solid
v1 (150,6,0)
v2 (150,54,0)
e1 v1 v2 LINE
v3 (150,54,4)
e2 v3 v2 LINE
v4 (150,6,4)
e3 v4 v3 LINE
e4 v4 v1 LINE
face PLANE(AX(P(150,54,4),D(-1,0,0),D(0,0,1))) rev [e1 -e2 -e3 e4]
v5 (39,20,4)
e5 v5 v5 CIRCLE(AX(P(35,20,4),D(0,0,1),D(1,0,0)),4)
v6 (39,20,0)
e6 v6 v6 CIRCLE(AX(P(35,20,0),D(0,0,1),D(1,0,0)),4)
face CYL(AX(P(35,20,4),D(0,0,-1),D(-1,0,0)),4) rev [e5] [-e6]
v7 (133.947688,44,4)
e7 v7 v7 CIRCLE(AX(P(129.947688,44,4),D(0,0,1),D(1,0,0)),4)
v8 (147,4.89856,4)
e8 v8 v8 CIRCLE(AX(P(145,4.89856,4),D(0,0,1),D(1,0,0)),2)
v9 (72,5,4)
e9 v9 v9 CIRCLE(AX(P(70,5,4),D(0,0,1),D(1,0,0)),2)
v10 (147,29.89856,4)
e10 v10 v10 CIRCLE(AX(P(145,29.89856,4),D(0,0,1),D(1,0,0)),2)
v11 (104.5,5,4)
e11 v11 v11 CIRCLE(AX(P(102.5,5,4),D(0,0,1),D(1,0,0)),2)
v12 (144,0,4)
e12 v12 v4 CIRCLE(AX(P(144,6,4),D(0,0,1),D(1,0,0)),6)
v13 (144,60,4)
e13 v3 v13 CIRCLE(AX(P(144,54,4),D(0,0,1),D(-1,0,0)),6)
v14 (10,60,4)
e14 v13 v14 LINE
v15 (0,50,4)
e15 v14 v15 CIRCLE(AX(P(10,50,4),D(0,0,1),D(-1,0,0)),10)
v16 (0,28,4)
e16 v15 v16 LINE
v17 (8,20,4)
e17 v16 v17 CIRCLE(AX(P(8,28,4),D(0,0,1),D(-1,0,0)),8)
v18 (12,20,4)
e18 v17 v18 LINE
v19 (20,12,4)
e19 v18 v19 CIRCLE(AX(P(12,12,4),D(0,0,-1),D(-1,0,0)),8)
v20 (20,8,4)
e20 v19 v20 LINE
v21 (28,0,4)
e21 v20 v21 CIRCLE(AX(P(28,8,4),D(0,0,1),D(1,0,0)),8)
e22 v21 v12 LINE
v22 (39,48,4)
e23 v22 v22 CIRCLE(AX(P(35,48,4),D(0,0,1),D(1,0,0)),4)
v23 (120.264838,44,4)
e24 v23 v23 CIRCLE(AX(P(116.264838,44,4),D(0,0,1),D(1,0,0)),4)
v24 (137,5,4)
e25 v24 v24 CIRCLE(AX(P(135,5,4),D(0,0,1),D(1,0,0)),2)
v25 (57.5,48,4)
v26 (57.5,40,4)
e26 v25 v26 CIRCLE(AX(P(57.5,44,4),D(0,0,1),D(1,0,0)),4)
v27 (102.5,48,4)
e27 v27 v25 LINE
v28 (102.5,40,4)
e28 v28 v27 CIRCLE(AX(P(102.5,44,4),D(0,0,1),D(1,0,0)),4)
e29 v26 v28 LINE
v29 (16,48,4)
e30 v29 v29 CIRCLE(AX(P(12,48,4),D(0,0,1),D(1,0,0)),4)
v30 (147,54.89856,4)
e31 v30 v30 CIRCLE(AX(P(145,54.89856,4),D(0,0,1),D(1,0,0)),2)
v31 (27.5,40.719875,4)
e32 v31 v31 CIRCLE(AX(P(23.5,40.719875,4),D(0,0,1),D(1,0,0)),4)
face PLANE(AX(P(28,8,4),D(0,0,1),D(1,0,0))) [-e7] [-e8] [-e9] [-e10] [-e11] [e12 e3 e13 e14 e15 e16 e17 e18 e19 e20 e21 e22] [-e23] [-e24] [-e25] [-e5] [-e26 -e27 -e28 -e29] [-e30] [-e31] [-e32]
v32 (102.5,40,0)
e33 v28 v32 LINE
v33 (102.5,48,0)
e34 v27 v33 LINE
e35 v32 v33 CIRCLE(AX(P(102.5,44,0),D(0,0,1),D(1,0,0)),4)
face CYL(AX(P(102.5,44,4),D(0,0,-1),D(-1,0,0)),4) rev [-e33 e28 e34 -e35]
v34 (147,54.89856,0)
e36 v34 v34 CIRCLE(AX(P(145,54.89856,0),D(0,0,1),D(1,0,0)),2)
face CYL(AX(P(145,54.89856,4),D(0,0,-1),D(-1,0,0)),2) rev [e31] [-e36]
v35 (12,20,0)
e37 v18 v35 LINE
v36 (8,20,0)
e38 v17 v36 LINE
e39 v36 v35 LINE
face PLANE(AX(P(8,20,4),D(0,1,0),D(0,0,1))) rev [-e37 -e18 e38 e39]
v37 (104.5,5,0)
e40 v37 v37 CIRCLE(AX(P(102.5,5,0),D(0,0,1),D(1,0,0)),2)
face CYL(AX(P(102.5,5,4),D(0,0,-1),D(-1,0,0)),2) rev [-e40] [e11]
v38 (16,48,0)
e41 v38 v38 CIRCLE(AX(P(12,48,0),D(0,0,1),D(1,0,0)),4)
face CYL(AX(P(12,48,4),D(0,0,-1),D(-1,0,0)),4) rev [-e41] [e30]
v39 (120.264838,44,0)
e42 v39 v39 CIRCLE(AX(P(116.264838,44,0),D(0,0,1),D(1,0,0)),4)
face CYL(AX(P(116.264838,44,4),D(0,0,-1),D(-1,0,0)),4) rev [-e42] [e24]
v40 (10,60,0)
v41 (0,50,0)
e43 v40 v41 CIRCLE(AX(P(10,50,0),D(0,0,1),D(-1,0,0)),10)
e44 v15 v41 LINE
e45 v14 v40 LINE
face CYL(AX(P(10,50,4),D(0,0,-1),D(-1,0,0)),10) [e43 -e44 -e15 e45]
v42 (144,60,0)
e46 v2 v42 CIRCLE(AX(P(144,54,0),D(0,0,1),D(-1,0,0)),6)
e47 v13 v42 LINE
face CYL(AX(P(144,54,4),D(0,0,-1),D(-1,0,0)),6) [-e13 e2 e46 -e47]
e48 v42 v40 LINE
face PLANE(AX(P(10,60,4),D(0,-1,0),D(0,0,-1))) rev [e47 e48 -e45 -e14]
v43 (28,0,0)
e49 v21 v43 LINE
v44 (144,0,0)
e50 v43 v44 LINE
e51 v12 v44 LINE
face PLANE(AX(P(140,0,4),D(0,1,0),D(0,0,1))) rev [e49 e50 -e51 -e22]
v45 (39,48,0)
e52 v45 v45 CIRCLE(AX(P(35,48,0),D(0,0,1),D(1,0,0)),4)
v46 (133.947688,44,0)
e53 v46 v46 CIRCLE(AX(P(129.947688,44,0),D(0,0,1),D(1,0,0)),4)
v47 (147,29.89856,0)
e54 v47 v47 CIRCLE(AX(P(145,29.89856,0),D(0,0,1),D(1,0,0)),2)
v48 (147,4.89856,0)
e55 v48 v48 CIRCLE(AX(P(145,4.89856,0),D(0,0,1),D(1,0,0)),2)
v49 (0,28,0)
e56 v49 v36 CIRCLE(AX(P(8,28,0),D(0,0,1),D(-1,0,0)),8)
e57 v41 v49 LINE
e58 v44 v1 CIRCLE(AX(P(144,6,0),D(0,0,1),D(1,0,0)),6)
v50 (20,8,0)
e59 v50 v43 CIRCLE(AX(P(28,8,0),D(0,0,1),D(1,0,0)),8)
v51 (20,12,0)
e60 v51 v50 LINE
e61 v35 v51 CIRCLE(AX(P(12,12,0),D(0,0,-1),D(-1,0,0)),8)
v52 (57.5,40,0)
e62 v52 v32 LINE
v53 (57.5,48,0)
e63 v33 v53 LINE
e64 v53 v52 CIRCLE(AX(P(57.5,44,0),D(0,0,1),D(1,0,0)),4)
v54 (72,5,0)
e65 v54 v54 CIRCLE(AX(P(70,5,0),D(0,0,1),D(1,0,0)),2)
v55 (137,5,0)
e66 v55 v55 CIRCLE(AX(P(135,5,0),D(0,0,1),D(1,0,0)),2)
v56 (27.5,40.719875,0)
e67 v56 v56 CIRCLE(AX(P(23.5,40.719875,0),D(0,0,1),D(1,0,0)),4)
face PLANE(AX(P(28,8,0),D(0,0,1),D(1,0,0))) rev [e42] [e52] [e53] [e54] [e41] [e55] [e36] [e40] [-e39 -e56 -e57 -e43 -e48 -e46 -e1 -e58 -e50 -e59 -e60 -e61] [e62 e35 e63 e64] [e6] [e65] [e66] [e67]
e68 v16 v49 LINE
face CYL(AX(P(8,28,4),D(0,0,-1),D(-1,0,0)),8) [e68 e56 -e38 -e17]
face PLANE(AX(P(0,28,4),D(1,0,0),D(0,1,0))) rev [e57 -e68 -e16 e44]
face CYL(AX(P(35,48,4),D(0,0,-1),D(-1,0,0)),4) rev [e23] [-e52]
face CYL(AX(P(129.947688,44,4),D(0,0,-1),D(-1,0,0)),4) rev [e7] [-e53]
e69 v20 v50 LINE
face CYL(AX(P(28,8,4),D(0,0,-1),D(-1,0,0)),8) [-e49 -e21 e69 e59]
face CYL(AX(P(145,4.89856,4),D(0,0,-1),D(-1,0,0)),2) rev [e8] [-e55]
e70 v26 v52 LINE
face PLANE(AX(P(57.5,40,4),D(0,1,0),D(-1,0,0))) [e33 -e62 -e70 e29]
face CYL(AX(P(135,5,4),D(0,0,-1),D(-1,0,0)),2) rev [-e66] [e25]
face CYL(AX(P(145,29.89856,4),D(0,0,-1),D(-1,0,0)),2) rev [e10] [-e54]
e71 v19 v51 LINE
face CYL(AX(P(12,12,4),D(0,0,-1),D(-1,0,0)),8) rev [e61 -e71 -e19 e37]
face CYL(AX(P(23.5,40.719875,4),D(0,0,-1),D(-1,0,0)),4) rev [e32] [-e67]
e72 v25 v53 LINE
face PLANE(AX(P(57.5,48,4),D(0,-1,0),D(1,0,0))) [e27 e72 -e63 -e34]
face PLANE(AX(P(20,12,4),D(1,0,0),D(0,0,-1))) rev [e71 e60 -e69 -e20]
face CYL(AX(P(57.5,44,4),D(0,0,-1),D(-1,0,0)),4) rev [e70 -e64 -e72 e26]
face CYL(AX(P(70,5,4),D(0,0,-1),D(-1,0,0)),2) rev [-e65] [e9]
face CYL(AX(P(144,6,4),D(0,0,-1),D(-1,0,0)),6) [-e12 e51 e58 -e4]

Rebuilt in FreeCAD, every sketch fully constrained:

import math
import FreeCAD as App
import Part
import Sketcher

doc = App.newDocument("Part")
body = doc.addObject("PartDesign::Body", "Body")

# Sketch on XY plane
sketch1 = body.newObject("Sketcher::SketchObject", "Sketch")
sketch1.AttachmentSupport = (doc.getObject("XY_Plane"), [""])
sketch1.MapMode = "FlatFace"
sketch1.addGeometry([
    Part.LineSegment(App.Vector(28, 0, 0), App.Vector(144, 0, 0)),  # 0
    Part.ArcOfCircle(Part.Circle(App.Vector(144, 6, 0), App.Vector(0, 0, 1), 6), math.radians(-90), math.radians(0)),  # 1
    Part.LineSegment(App.Vector(150, 6, 0), App.Vector(150, 54, 0)),  # 2
    Part.ArcOfCircle(Part.Circle(App.Vector(144, 54, 0), App.Vector(0, 0, 1), 6), math.radians(0), math.radians(90)),  # 3
    Part.LineSegment(App.Vector(144, 60, 0), App.Vector(10, 60, 0)),  # 4
    Part.ArcOfCircle(Part.Circle(App.Vector(10, 50, 0), App.Vector(0, 0, 1), 10), math.radians(90), math.radians(180)),  # 5
    Part.LineSegment(App.Vector(0, 50, 0), App.Vector(0, 28, 0)),  # 6
    Part.ArcOfCircle(Part.Circle(App.Vector(8, 28, 0), App.Vector(0, 0, 1), 8), math.radians(-180), math.radians(-90)),  # 7
    Part.LineSegment(App.Vector(8, 20, 0), App.Vector(12, 20, 0)),  # 8
    Part.ArcOfCircle(Part.Circle(App.Vector(12, 12, 0), App.Vector(0, 0, 1), 8), math.radians(0), math.radians(90)),  # 9
    Part.LineSegment(App.Vector(20, 12, 0), App.Vector(20, 8, 0)),  # 10
    Part.ArcOfCircle(Part.Circle(App.Vector(28, 8, 0), App.Vector(0, 0, 1), 8), math.radians(-180), math.radians(-90)),  # 11
    Part.Circle(App.Vector(70, 5, 0), App.Vector(0, 0, 1), 2),  # 12
    Part.Circle(App.Vector(35, 20, 0), App.Vector(0, 0, 1), 4),  # 13
    Part.Circle(App.Vector(102.5, 5, 0), App.Vector(0, 0, 1), 2),  # 14
    Part.Circle(App.Vector(135, 5, 0), App.Vector(0, 0, 1), 2),  # 15
    Part.Circle(App.Vector(145, 4.9, 0), App.Vector(0, 0, 1), 2),  # 16
    Part.Circle(App.Vector(23.5, 40.7, 0), App.Vector(0, 0, 1), 4),  # 17
    Part.Circle(App.Vector(12, 48, 0), App.Vector(0, 0, 1), 4),  # 18
    Part.Circle(App.Vector(35, 48, 0), App.Vector(0, 0, 1), 4),  # 19
    Part.Circle(App.Vector(145, 29.9, 0), App.Vector(0, 0, 1), 2),  # 20
    Part.ArcOfCircle(Part.Circle(App.Vector(57.5, 44, 0), App.Vector(0, 0, 1), 4), math.radians(90), math.radians(270)),  # 21
    Part.LineSegment(App.Vector(57.5, 48, 0), App.Vector(102.5, 48, 0)),  # 22
    Part.ArcOfCircle(Part.Circle(App.Vector(102.5, 44, 0), App.Vector(0, 0, 1), 4), math.radians(-90), math.radians(90)),  # 23
    Part.LineSegment(App.Vector(102.5, 40, 0), App.Vector(57.5, 40, 0)),  # 24
    Part.Circle(App.Vector(116.3, 44, 0), App.Vector(0, 0, 1), 4),  # 25
    Part.Circle(App.Vector(129.9, 44, 0), App.Vector(0, 0, 1), 4),  # 26
    Part.Circle(App.Vector(145, 54.9, 0), App.Vector(0, 0, 1), 2),  # 27
], False)
sketch1.addConstraint([
    Sketcher.Constraint("Tangent", 0, 2, 1, 1),
    Sketcher.Constraint("Tangent", 1, 2, 2, 1),
    Sketcher.Constraint("Tangent", 2, 2, 3, 1),
    Sketcher.Constraint("Tangent", 3, 2, 4, 1),
    Sketcher.Constraint("Tangent", 4, 2, 5, 1),
    Sketcher.Constraint("Tangent", 5, 2, 6, 1),
    Sketcher.Constraint("Tangent", 6, 2, 7, 1),
    Sketcher.Constraint("Tangent", 7, 2, 8, 1),
    Sketcher.Constraint("Tangent", 8, 2, 9, 2),
    Sketcher.Constraint("Tangent", 9, 1, 10, 1),
    Sketcher.Constraint("Tangent", 10, 2, 11, 1),
    Sketcher.Constraint("Tangent", 11, 2, 0, 1),
    Sketcher.Constraint("Tangent", 21, 1, 22, 1),
    Sketcher.Constraint("Tangent", 22, 2, 23, 2),
    Sketcher.Constraint("Tangent", 23, 1, 24, 1),
    Sketcher.Constraint("Tangent", 24, 2, 21, 2),
    Sketcher.Constraint("Horizontal", 0),
    Sketcher.Constraint("Vertical", 2),
    Sketcher.Constraint("Horizontal", 4),
    Sketcher.Constraint("Vertical", 6),
    Sketcher.Constraint("Horizontal", 8),
    Sketcher.Constraint("Vertical", 10),
    Sketcher.Constraint("Horizontal", 22),
    Sketcher.Constraint("Horizontal", 24),
    Sketcher.Constraint("Equal", 1, 3),
    Sketcher.Constraint("Equal", 7, 9),
    Sketcher.Constraint("Equal", 9, 11),
    Sketcher.Constraint("Equal", 12, 14),
    Sketcher.Constraint("Equal", 14, 15),
    Sketcher.Constraint("Equal", 15, 16),
    Sketcher.Constraint("Equal", 13, 17),
    Sketcher.Constraint("Equal", 17, 18),
    Sketcher.Constraint("Equal", 18, 19),
    Sketcher.Constraint("Equal", 16, 20),
    Sketcher.Constraint("Equal", 19, 21),
    Sketcher.Constraint("Equal", 23, 25),
    Sketcher.Constraint("Equal", 25, 26),
    Sketcher.Constraint("Equal", 20, 27),
    Sketcher.Constraint("PointOnObject", 0, 2, -1),
    Sketcher.Constraint("PointOnObject", 5, 2, -2),
    Sketcher.Constraint("Horizontal", 12, 3, 14, 3),
    Sketcher.Constraint("Horizontal", 14, 3, 15, 3),
    Sketcher.Constraint("Horizontal", 18, 3, 19, 3),
    Sketcher.Constraint("Horizontal", 23, 3, 25, 3),
    Sketcher.Constraint("Horizontal", 25, 3, 26, 3),
    Sketcher.Constraint("Horizontal", 13, 3, 7, 2),
    Sketcher.Constraint("Horizontal", 19, 3, 21, 1),
    Sketcher.Constraint("Vertical", 9, 3, 18, 3),
    Sketcher.Constraint("Vertical", 13, 3, 19, 3),
    Sketcher.Constraint("Vertical", 16, 3, 20, 3),
    Sketcher.Constraint("Vertical", 14, 3, 23, 3),
    Sketcher.Constraint("Vertical", 20, 3, 27, 3),
    Sketcher.Constraint("Equal", 8, 10),
    Sketcher.Constraint("Diameter", 12, 4.0),
    Sketcher.Constraint("Diameter", 13, 8.0),
    Sketcher.Constraint("Radius", 1, 6.0),
    Sketcher.Constraint("Radius", 5, 10.0),
    Sketcher.Constraint("Radius", 7, 8.0),
    Sketcher.Constraint("DistanceX", 0, 1, 0, 2, 116.0),
    Sketcher.Constraint("DistanceX", 4, 2, 4, 1, 134.0),
    Sketcher.Constraint("DistanceX", 22, 1, 22, 2, 45.0),
    Sketcher.Constraint("DistanceY", 2, 1, 2, 2, 48.0),
    Sketcher.Constraint("DistanceX", -1, 1, 12, 3, 70.0),
    Sketcher.Constraint("DistanceY", -1, 1, 12, 3, 5.0),
    Sketcher.Constraint("DistanceX", -1, 1, 13, 3, 35.0),
    Sketcher.Constraint("DistanceX", -1, 1, 15, 3, 135.0),
    Sketcher.Constraint("DistanceX", -1, 1, 16, 3, 145.0),
    Sketcher.Constraint("DistanceY", -1, 1, 18, 3, 48.0),
    Sketcher.Constraint("DistanceY", 16, 3, 20, 3, 25.0),
    Sketcher.Constraint("DistanceX", 17, 3, 21, 3, 34.0),
    Sketcher.Constraint("DistanceY", 20, 3, 27, 3, 25.0),
    Sketcher.Constraint("DistanceX", -1, 1, 14, 3, 102.5),
    Sketcher.Constraint("DistanceY", -1, 1, 16, 3, 4.89856),
    Sketcher.Constraint("DistanceX", -1, 1, 25, 3, 116.264838),
    Sketcher.Constraint("DistanceX", -1, 1, 26, 3, 129.947688),
    Sketcher.Constraint("DistanceY", -1, 1, 17, 3, 40.719875),
])
pad1 = body.newObject("PartDesign::Pad", "Pad")
pad1.Profile = sketch1
pad1.Length = 4

doc.recompute()
